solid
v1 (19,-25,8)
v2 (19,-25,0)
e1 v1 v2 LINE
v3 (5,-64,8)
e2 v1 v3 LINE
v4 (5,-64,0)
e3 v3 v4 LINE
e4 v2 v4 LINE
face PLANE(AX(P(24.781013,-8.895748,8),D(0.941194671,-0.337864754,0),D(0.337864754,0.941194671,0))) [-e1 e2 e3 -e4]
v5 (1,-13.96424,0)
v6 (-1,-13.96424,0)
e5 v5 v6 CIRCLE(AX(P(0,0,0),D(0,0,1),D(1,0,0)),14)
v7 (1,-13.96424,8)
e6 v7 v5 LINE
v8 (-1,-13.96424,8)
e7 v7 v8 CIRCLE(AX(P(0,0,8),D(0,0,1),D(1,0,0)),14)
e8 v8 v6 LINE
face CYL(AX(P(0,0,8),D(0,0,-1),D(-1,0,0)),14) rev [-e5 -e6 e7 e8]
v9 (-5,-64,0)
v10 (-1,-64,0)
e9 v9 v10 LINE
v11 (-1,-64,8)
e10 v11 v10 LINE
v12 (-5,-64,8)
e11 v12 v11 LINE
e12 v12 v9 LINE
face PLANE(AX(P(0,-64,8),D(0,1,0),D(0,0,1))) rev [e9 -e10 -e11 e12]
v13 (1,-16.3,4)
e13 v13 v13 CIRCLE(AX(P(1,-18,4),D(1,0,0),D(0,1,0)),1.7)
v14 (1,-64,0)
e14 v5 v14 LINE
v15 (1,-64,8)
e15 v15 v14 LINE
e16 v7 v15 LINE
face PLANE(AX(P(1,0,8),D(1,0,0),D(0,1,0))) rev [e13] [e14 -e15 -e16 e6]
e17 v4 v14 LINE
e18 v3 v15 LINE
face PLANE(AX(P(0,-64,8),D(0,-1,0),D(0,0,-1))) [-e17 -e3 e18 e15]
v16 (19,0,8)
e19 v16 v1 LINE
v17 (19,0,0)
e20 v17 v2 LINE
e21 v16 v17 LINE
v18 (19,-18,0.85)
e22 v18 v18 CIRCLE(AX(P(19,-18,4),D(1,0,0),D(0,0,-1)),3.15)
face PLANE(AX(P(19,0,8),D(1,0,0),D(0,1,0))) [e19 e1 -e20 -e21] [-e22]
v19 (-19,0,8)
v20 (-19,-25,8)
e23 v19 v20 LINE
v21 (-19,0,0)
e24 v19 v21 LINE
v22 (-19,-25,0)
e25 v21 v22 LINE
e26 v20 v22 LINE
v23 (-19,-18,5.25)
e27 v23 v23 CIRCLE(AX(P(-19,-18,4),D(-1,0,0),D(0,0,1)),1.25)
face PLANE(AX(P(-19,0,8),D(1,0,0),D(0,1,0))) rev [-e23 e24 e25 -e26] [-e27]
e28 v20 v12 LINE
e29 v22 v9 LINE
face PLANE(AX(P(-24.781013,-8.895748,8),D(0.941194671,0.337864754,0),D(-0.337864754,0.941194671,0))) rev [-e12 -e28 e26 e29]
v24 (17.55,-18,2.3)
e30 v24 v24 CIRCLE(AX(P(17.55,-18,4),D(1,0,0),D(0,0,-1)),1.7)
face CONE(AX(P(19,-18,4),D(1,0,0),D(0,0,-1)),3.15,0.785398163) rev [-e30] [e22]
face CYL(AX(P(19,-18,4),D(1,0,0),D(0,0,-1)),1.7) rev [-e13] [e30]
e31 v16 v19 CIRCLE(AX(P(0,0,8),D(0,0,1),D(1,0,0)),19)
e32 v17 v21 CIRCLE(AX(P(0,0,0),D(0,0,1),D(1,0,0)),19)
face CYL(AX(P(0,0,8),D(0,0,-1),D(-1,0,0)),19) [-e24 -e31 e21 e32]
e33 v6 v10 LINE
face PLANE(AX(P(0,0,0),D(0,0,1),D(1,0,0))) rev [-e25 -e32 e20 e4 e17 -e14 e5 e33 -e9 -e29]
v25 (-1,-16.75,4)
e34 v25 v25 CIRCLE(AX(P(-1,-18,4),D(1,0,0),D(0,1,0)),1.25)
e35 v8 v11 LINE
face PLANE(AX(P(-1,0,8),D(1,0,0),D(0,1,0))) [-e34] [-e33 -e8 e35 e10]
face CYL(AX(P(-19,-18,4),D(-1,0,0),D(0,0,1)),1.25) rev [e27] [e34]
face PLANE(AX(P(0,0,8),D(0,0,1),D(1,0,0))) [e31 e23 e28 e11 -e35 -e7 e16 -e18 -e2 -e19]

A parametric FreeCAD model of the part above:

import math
import FreeCAD as App
import Part
import Sketcher

doc = App.newDocument("Part")
params = doc.addObject("Spreadsheet::Sheet", "Params")
for row, (alias, value) in enumerate([
    ("sketch1_radius", "19 mm"),
    ("sketch1_radius2", "14 mm"),
    ("sketch1_width", "4 mm"),
    ("sketch1_height", "25 mm"),
    ("pad1_length", "8 mm"),
    ("sketch2_diameter", "3.4 mm"),
    ("hole_diameter", "3.4 mm"),
    ("hole_depth", "18 mm"),
    ("hole_csink_diameter", "6.3 mm"),
    ("sketch3_diameter", "2.5 mm"),
    ("hole2_diameter", "2.5 mm"),
    ("hole2_depth", "18 mm"),
], start=1):
    params.set(f"A{row}", alias)
    params.set(f"B{row}", "=" + value)
    params.setAlias(f"B{row}", alias)

body = doc.addObject("PartDesign::Body", "Body")

# Sketch on XY plane
sketch1 = body.newObject("Sketcher::SketchObject", "Sketch")
sketch1.AttachmentSupport = (doc.getObject("XY_Plane"), [""])
sketch1.MapMode = "FlatFace"
sketch1.addGeometry([
    Part.LineSegment(App.Vector(1, -14, 0), App.Vector(1, -64, 0)),  # 0
    Part.LineSegment(App.Vector(1, -64, 0), App.Vector(5, -64, 0)),  # 1
    Part.LineSegment(App.Vector(5, -64, 0), App.Vector(19, -25, 0)),  # 2
    Part.LineSegment(App.Vector(19, -25, 0), App.Vector(19, 0, 0)),  # 3
    Part.ArcOfCircle(Part.Circle(App.Vector(0, 0, 0), App.Vector(0, 0, 1), 19), math.radians(0), math.radians(180)),  # 4
    Part.LineSegment(App.Vector(-19, 0, 0), App.Vector(-19, -25, 0)),  # 5
    Part.LineSegment(App.Vector(-19, -25, 0), App.Vector(-5, -64, 0)),  # 6
    Part.LineSegment(App.Vector(-5, -64, 0), App.Vector(-1, -64, 0)),  # 7
    Part.LineSegment(App.Vector(-1, -64, 0), App.Vector(-1, -14, 0)),  # 8
    Part.ArcOfCircle(Part.Circle(App.Vector(0, 0, 0), App.Vector(0, 0, 1), 14), math.radians(-86), math.radians(266)),  # 9
], False)
sketch1.addConstraint([
    Sketcher.Constraint("Coincident", 0, 2, 1, 1),
    Sketcher.Constraint("Coincident", 1, 2, 2, 1),
    Sketcher.Constraint("Coincident", 2, 2, 3, 1),
    Sketcher.Constraint("Tangent", 3, 2, 4, 1),
    Sketcher.Constraint("Tangent", 4, 2, 5, 1),
    Sketcher.Constraint("Coincident", 5, 2, 6, 1),
    Sketcher.Constraint("Coincident", 6, 2, 7, 1),
    Sketcher.Constraint("Coincident", 7, 2, 8, 1),
    Sketcher.Constraint("Coincident", 8, 2, 9, 2),
    Sketcher.Constraint("Coincident", 9, 1, 0, 1),
    Sketcher.Constraint("Vertical", 0),
    Sketcher.Constraint("Horizontal", 1),
    Sketcher.Constraint("Vertical", 3),
    Sketcher.Constraint("Vertical", 5),
    Sketcher.Constraint("Horizontal", 7),
    Sketcher.Constraint("Vertical", 8),
    Sketcher.Constraint("Coincident", 4, 3, -1, 1),
    Sketcher.Constraint("Coincident", 9, 3, -1, 1),
    Sketcher.Constraint("Symmetric", 1, 2, 6, 2, -2),
    Sketcher.Constraint("Horizontal", 2, 2, 5, 2),
    Sketcher.Constraint("Horizontal", 8, 2, 9, 1),
    Sketcher.Constraint("Radius", 4, 19.0),
    Sketcher.Constraint("Radius", 9, 14.0),
    Sketcher.Constraint("DistanceX", 1, 1, 1, 2, 4.0),
    Sketcher.Constraint("DistanceY", 3, 1, 3, 2, 25.0),
    Sketcher.Constraint("DistanceX", -1, 1, 0, 2, 1.0),
    Sketcher.Constraint("DistanceY", 0, 2, -1, 1, 64.0),
])
sketch1.setExpression("Constraints[21]", "Params.sketch1_radius")
sketch1.setExpression("Constraints[22]", "Params.sketch1_radius2")
sketch1.setExpression("Constraints[23]", "Params.sketch1_width")
sketch1.setExpression("Constraints[24]", "Params.sketch1_height")
pad1 = body.newObject("PartDesign::Pad", "Pad")
pad1.Profile = sketch1
pad1.setExpression("Length", "Params.pad1_length")

# Sketch on YZ plane
sketch2 = body.newObject("Sketcher::SketchObject", "Sketch001")
sketch2.AttachmentSupport = (doc.getObject("YZ_Plane"), [""])
sketch2.MapMode = "FlatFace"
sketch2.AttachmentOffset = App.Placement(App.Vector(0, 0, 19), App.Rotation())
sketch2.addGeometry(Part.Circle(App.Vector(-18, 4, 0), App.Vector(0, 0, 1), 1.7), False)
sketch2.addConstraint([
    Sketcher.Constraint("Diameter", 0, 3.4),
    Sketcher.Constraint("DistanceX", 0, 3, -1, 1, 18.0),
    Sketcher.Constraint("DistanceY", -1, 1, 0, 3, 4.0),
])
sketch2.setExpression("Constraints[0]", "Params.sketch2_diameter")
doc.recompute()
hole = body.newObject("PartDesign::Hole", "Hole")
hole.Profile = sketch2
hole.ThreadType = "None"
hole.setExpression("Diameter", "Params.hole_diameter")
hole.DepthType = "Dimension"
hole.setExpression("Depth", "Params.hole_depth")
hole.DrillPoint = "Flat"
hole.HoleCutType = "Countersink"
hole.setExpression("HoleCutDiameter", "Params.hole_csink_diameter")
hole.HoleCutCountersinkAngle = 90

# Sketch on YZ plane
sketch3 = body.newObject("Sketcher::SketchObject", "Sketch002")
sketch3.AttachmentSupport = (doc.getObject("YZ_Plane"), [""])
sketch3.MapMode = "FlatFace"
sketch3.AttachmentOffset = App.Placement(App.Vector(0, 0, -19), App.Rotation())
sketch3.addGeometry(Part.Circle(App.Vector(-18, 4, 0), App.Vector(0, 0, 1), 1.2), False)
sketch3.addConstraint([
    Sketcher.Constraint("Diameter", 0, 2.5),
    Sketcher.Constraint("DistanceX", 0, 3, -1, 1, 18.0),
    Sketcher.Constraint("DistanceY", -1, 1, 0, 3, 4.0),
])
sketch3.setExpression("Constraints[0]", "Params.sketch3_diameter")
doc.recompute()
hole2 = body.newObject("PartDesign::Hole", "Hole001")
hole2.Profile = sketch3
hole2.ThreadType = "None"
hole2.setExpression("Diameter", "Params.hole2_diameter")
hole2.DepthType = "Dimension"
hole2.setExpression("Depth", "Params.hole2_depth")
hole2.DrillPoint = "Flat"
hole2.Reversed = True

doc.recompute()
